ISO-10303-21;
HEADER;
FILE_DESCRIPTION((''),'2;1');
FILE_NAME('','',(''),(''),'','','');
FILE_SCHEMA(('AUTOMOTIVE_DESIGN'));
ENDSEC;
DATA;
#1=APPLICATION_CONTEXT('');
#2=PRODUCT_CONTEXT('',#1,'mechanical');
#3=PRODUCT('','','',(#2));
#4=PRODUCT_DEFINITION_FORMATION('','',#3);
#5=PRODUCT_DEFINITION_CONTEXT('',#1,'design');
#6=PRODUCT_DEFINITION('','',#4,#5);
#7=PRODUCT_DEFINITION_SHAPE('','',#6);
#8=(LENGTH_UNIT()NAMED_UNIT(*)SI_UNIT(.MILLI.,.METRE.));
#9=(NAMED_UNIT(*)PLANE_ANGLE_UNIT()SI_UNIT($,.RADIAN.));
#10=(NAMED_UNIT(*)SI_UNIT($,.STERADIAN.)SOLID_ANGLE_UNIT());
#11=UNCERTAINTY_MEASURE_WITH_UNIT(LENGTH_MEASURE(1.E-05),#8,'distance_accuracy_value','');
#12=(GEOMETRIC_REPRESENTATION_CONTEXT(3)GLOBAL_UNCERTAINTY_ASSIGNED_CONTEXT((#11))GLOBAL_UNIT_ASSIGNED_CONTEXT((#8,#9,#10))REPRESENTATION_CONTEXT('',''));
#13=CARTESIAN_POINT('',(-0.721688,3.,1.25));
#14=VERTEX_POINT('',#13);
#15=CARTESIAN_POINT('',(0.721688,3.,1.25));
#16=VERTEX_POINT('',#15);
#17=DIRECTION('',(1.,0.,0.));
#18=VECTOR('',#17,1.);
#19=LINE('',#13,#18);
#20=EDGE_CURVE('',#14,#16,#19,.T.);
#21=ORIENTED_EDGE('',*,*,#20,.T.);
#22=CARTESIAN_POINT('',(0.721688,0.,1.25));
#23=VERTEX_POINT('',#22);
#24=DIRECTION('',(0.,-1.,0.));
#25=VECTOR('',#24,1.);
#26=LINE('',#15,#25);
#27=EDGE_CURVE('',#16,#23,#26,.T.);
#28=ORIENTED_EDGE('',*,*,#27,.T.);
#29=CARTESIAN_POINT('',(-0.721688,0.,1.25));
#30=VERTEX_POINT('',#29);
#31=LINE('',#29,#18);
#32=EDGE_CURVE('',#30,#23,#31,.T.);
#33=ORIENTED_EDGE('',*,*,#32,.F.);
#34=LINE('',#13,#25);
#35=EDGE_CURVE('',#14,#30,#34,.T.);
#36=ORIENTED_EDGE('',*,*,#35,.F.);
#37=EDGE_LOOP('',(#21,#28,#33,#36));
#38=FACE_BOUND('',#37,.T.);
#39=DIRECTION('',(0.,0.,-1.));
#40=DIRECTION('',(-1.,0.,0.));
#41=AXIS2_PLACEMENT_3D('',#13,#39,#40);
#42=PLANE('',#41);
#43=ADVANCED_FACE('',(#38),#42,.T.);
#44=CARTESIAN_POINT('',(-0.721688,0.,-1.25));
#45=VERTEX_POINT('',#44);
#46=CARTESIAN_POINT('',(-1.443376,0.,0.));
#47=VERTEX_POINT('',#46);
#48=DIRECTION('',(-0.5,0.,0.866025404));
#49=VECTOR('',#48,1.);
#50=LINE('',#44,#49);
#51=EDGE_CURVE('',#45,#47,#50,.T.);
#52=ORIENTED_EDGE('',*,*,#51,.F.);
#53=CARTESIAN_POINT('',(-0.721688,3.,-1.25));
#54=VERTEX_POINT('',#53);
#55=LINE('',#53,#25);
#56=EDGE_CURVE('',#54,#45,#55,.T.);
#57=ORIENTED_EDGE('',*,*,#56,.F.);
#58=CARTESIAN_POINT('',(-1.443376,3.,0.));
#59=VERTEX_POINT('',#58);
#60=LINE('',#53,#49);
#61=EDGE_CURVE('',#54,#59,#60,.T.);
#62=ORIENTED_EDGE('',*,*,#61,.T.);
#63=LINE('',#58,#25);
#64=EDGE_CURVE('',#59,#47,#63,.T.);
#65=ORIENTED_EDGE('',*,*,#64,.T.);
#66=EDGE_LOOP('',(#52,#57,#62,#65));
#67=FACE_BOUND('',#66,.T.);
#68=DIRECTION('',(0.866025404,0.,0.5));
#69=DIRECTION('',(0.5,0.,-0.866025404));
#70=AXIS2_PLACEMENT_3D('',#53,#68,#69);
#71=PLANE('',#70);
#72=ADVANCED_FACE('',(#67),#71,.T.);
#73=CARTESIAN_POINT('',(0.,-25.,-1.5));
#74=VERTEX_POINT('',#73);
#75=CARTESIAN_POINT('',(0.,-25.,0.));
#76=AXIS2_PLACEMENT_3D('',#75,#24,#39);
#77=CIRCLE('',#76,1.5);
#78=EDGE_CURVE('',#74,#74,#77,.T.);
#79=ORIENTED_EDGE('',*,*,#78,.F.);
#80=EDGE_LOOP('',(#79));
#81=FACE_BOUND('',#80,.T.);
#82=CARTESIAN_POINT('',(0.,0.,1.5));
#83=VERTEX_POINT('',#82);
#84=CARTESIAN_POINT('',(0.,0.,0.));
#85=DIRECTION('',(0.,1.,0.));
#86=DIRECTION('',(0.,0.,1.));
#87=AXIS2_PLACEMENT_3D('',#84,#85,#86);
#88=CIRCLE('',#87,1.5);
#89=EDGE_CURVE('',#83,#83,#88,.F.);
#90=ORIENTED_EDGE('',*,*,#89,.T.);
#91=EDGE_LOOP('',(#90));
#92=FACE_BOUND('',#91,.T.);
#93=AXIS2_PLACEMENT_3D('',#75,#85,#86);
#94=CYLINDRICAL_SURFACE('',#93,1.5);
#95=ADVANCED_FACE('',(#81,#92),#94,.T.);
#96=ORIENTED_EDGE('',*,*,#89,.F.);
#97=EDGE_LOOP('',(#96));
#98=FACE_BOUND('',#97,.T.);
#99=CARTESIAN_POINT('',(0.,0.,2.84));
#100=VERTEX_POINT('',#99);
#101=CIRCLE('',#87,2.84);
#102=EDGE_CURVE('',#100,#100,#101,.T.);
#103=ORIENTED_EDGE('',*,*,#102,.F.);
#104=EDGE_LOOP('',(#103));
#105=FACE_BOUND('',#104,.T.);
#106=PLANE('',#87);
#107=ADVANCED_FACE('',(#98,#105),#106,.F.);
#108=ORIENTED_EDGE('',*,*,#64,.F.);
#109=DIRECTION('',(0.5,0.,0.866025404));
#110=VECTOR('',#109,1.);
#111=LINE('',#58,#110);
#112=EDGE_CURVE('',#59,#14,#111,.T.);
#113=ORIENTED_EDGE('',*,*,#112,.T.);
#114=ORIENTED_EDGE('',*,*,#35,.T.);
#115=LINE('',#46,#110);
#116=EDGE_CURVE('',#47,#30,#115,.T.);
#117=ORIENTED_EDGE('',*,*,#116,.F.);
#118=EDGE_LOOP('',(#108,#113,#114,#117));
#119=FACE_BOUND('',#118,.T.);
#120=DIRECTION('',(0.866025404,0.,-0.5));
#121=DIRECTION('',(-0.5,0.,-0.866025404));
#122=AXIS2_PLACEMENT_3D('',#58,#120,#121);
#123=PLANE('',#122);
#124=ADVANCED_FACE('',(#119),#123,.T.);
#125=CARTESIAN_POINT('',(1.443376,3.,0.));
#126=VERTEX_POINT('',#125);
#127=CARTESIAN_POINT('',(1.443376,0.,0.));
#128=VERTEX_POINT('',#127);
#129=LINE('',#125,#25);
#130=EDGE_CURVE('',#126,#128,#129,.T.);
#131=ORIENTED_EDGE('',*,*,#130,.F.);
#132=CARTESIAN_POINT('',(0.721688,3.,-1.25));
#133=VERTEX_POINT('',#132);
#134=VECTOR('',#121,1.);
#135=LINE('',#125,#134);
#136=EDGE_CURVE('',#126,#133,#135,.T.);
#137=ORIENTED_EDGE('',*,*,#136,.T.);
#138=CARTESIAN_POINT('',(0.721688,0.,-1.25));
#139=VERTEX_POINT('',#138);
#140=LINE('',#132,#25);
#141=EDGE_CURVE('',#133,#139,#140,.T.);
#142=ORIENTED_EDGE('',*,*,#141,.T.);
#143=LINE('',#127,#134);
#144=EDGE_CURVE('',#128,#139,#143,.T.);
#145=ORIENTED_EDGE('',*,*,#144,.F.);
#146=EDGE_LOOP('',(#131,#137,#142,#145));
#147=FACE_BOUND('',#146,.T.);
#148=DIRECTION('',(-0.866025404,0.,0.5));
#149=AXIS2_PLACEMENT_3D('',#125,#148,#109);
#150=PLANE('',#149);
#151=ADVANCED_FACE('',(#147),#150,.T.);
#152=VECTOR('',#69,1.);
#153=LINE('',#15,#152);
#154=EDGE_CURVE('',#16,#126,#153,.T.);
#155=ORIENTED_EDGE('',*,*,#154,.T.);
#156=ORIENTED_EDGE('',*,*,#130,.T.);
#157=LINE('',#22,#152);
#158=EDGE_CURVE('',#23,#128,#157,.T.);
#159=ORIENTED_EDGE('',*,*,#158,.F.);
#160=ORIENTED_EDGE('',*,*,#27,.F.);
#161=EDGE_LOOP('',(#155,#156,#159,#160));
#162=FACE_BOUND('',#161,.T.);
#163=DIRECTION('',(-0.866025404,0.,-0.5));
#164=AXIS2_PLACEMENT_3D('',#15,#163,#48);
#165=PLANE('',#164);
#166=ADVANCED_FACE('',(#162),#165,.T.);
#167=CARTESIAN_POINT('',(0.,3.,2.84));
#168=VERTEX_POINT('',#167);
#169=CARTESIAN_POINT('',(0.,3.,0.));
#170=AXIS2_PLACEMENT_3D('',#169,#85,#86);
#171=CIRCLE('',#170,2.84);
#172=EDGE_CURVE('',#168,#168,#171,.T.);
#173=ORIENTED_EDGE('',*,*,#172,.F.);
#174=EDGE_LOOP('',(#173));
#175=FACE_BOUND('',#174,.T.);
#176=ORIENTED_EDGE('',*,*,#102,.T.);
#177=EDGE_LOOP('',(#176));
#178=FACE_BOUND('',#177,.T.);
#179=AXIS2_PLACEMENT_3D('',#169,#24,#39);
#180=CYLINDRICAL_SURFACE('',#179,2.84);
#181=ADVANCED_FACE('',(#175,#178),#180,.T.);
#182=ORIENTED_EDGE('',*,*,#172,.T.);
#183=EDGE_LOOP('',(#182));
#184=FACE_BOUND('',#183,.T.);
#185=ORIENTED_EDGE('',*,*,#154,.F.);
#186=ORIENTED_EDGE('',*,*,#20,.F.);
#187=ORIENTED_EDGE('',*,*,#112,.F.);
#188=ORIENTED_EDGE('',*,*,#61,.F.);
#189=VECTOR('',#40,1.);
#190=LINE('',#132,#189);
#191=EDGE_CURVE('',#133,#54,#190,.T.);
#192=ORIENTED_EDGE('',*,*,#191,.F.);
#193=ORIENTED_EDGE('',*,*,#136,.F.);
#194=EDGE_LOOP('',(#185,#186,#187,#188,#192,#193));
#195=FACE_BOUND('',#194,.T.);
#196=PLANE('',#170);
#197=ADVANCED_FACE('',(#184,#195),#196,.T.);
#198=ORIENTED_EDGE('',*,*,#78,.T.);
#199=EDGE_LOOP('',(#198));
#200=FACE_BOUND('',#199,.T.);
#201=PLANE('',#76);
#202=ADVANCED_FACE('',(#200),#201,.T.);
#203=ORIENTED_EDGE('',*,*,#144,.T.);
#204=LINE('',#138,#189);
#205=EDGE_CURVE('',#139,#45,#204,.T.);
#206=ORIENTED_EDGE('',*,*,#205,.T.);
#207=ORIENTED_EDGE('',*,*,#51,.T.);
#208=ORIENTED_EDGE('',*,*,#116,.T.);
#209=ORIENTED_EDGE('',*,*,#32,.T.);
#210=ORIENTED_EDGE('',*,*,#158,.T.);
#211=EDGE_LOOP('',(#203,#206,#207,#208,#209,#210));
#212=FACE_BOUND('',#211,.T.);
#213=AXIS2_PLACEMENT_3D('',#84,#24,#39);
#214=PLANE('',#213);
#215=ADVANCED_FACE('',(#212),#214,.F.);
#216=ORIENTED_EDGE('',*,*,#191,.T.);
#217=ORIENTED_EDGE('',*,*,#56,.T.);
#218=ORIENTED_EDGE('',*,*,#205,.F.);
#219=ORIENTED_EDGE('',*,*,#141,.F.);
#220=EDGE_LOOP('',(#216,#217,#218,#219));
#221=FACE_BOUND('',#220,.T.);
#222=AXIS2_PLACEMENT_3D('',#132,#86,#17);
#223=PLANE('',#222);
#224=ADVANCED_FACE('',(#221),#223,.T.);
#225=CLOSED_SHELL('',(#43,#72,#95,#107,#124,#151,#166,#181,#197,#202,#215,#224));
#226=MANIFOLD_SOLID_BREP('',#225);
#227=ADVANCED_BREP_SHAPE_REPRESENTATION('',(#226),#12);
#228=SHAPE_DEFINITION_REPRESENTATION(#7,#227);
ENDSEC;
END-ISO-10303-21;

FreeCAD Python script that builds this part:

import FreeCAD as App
import Part
import Sketcher
Q = App.Units.Quantity

doc = App.newDocument("Part")
params = doc.addObject("Spreadsheet::Sheet", "Params")
for row, (alias, value) in enumerate([
    ("sketch1_diameter", "5.68 mm"),
    ("pad1_length", "3 mm"),
    ("sketch2_diameter", "3 mm"),
    ("pad2_length", "25 mm"),
], start=1):
    params.set(f"A{row}", alias)
    params.set(f"B{row}", "=" + value)
    params.setAlias(f"B{row}", alias)

body = doc.addObject("PartDesign::Body", "Body")

# Sketch on XZ plane
sketch1 = body.newObject("Sketcher::SketchObject", "Sketch")
sketch1.AttachmentSupport = (doc.getObject("XZ_Plane"), [""])
sketch1.MapMode = "FlatFace"
sketch1.addGeometry(Part.Circle(App.Vector(0, 0, 0), App.Vector(0, 0, 1), 2.84), False)
sketch1.addGeometry(Part.LineSegment(App.Vector(-0.721688, -1.25, 0), App.Vector(0.721688, -1.25, 0)), False)
sketch1.addGeometry(Part.LineSegment(App.Vector(0.721688, -1.25, 0), App.Vector(1.443376, 0, 0)), False)
sketch1.addGeometry(Part.LineSegment(App.Vector(1.443376, 0, 0), App.Vector(0.721688, 1.25, 0)), False)
sketch1.addGeometry(Part.LineSegment(App.Vector(0.721688, 1.25, 0), App.Vector(-0.721688, 1.25, 0)), False)
sketch1.addGeometry(Part.LineSegment(App.Vector(-0.721688, 1.25, 0), App.Vector(-1.443376, 0, 0)), False)
sketch1.addGeometry(Part.LineSegment(App.Vector(-1.443376, 0, 0), App.Vector(-0.721688, -1.25, 0)), False)
sketch1.addConstraint(Sketcher.Constraint("Coincident", 1, 2, 2, 1))
sketch1.addConstraint(Sketcher.Constraint("Coincident", 2, 2, 3, 1))
sketch1.addConstraint(Sketcher.Constraint("Coincident", 3, 2, 4, 1))
sketch1.addConstraint(Sketcher.Constraint("Coincident", 4, 2, 5, 1))
sketch1.addConstraint(Sketcher.Constraint("Coincident", 5, 2, 6, 1))
sketch1.addConstraint(Sketcher.Constraint("Coincident", 6, 2, 1, 1))
sketch1.addConstraint(Sketcher.Constraint("Horizontal", 1))
sketch1.addConstraint(Sketcher.Constraint("Horizontal", 4))
sketch1.addConstraint(Sketcher.Constraint("Coincident", 0, 3, -1, 1))
sketch1.addConstraint(Sketcher.Constraint("Symmetric", 1, 2, 4, 2, -1, 1))
sketch1.addConstraint(Sketcher.Constraint("Symmetric", 2, 2, 5, 2, -1, 1))
sketch1.addConstraint(Sketcher.Constraint("PointOnObject", 2, 2, -1))
sketch1.addConstraint(Sketcher.Constraint("Parallel", 3, 6))
sketch1.addConstraint(Sketcher.Constraint("Vertical", 1, 2, 3, 2))
sketch1.addConstraint(Sketcher.Constraint("Diameter", 0, Q("5.68 mm")))
sketch1.addConstraint(Sketcher.Constraint("Angle", 2, Q("60 deg")))
sketch1.addConstraint(Sketcher.Constraint("DistanceY", 1, 2, 3, 2, Q("2.5 mm")))
sketch1.addConstraint(Sketcher.Constraint("DistanceX", 1, 1, 1, 2, Q("1.443376 mm")))
sketch1.setExpression("Constraints[14]", "Params.sketch1_diameter")
pad1 = body.newObject("PartDesign::Pad", "Pad")
pad1.Profile = sketch1
pad1.setExpression("Length", "Params.pad1_length")
pad1.Reversed = True

# Sketch on XZ plane
sketch2 = body.newObject("Sketcher::SketchObject", "Sketch001")
sketch2.AttachmentSupport = (doc.getObject("XZ_Plane"), [""])
sketch2.MapMode = "FlatFace"
sketch2.addGeometry(Part.Circle(App.Vector(0, 0, 0), App.Vector(0, 0, 1), 1.5), False)
sketch2.addConstraint(Sketcher.Constraint("Coincident", 0, 3, -1, 1))
sketch2.addConstraint(Sketcher.Constraint("Diameter", 0, Q("3 mm")))
sketch2.setExpression("Constraints[1]", "Params.sketch2_diameter")
pad2 = body.newObject("PartDesign::Pad", "Pad001")
pad2.Profile = sketch2
pad2.setExpression("Length", "Params.pad2_length")

doc.recompute()
